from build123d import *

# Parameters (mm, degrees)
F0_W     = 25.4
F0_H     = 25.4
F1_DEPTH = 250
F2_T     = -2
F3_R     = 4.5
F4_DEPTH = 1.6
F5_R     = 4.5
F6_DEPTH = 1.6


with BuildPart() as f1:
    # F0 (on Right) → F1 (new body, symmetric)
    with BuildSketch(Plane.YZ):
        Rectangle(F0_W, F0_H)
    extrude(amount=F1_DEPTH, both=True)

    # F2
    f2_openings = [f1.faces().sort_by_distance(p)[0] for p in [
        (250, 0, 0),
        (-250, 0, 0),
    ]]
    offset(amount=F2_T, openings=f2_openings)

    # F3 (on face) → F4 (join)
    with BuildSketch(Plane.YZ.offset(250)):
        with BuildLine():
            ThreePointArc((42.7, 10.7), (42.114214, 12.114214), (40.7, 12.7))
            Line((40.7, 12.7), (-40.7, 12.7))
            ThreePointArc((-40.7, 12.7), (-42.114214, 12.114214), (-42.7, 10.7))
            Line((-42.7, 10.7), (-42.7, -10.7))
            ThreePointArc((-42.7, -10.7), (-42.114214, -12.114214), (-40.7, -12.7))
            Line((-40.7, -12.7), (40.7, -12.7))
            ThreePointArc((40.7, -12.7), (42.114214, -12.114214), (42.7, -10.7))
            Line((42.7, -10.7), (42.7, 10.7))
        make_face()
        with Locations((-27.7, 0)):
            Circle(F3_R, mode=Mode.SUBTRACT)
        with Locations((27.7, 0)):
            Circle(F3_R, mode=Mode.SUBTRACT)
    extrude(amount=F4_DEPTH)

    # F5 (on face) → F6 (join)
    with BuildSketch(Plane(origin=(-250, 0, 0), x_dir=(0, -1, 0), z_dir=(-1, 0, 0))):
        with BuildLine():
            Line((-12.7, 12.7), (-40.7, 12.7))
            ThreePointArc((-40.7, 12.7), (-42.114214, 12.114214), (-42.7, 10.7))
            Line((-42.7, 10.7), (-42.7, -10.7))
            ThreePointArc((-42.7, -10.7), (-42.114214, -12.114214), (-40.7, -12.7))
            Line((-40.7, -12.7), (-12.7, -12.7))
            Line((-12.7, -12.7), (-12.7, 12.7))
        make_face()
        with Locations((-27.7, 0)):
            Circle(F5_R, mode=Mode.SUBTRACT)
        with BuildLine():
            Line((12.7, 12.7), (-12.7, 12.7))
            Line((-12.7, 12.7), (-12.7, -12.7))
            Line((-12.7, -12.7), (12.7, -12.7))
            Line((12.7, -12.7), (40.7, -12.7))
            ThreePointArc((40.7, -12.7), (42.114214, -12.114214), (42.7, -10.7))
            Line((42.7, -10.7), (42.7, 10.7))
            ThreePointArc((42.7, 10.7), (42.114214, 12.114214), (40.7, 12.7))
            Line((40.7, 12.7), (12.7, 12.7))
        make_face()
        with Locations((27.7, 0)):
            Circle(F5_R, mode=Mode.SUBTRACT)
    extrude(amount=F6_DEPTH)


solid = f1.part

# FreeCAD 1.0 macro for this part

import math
import FreeCAD as App
import Part
import Sketcher
from FreeCAD import Vector
Q = App.Units.Quantity


def faces_at(feature, points):
    """Names of the faces that lie closest to the given points."""
    faces = feature.Shape.Faces
    near = lambda p: min(range(len(faces)), key=lambda i: faces[i].distToShape(Part.Vertex(*p))[0])
    return sorted({f"Face{near(p) + 1}" for p in points})


def add_polygon(sketch, points):
    """Adds a closed chain of lines whose ends are joined by coincident constraints."""
    first, n = sketch.GeometryCount, len(points)
    for a, b in zip(points, points[1:] + points[:1]):
        sketch.addGeometry(Part.LineSegment(App.Vector(*a, 0), App.Vector(*b, 0)), False)
    for i in range(n):
        sketch.addConstraint(Sketcher.Constraint("Coincident", first + i, 2, first + (i + 1) % n, 1))

doc = App.newDocument("Part")
body = doc.addObject("PartDesign::Body", "Body")

sketch1 = doc.addObject("Sketcher::SketchObject", "Sketch")
body.addObject(sketch1)
sketch1.AttachmentSupport = (doc.YZ_Plane, [""])
sketch1.MapMode = "FlatFace"
add_polygon(sketch1, [(-13, 13), (-13, -13), (13, -13), (13, 13)])
sketch1.addConstraint(Sketcher.Constraint("Vertical", 0))
sketch1.addConstraint(Sketcher.Constraint("Horizontal", 1))
sketch1.addConstraint(Sketcher.Constraint("Vertical", 2))
sketch1.addConstraint(Sketcher.Constraint("Horizontal", 3))
sketch1.addConstraint(Sketcher.Constraint("Symmetric", 0, 2, 2, 2, -1, 1))
sketch1.addConstraint(Sketcher.Constraint("Equal", 3, 0))
sketch1.addConstraint(Sketcher.Constraint("DistanceX", 1, 1, 1, 2, Q("25.4 mm")))
pad1 = doc.addObject("PartDesign::Pad", "Pad")
body.addObject(pad1)
pad1.Profile = sketch1
pad1.Length = 500
pad1.Midplane = True
doc.recompute()

thickness = doc.addObject("PartDesign::Thickness", "Thickness")
body.addObject(thickness)
thickness.Base = (pad1, faces_at(pad1, [(250, 0, 0), (-250, 0, 0)]))
thickness.Value = 2
thickness.Reversed = True
thickness.Join = "Arc"

sketch2 = doc.addObject("Sketcher::SketchObject", "Sketch001")
body.addObject(sketch2)
sketch2.AttachmentSupport = (doc.YZ_Plane, [""])
sketch2.MapMode = "FlatFace"
sketch2.AttachmentOffset = App.Placement(Vector(0, 0, 250), App.Rotation())
sketch2.addGeometry(Part.ArcOfCircle(Part.Circle(Vector(40.7, 10.7, 0), Vector(0, 0, 1), 2), math.radians(0), math.radians(90)), False)
sketch2.addGeometry(Part.LineSegment(Vector(40.7, 12.7, 0), Vector(-40.7, 12.7, 0)), False)
sketch2.addGeometry(Part.ArcOfCircle(Part.Circle(Vector(-40.7, 10.7, 0), Vector(0, 0, 1), 2), math.radians(90), math.radians(180)), False)
sketch2.addGeometry(Part.LineSegment(Vector(-42.7, 10.7, 0), Vector(-42.7, -10.7, 0)), False)
sketch2.addGeometry(Part.ArcOfCircle(Part.Circle(Vector(-40.7, -10.7, 0), Vector(0, 0, 1), 2), math.radians(180), math.radians(270)), False)
sketch2.addGeometry(Part.LineSegment(Vector(-40.7, -12.7, 0), Vector(40.7, -12.7, 0)), False)
sketch2.addGeometry(Part.ArcOfCircle(Part.Circle(Vector(40.7, -10.7, 0), Vector(0, 0, 1), 2), math.radians(-90), math.radians(0)), False)
sketch2.addGeometry(Part.LineSegment(Vector(42.7, -10.7, 0), Vector(42.7, 10.7, 0)), False)
sketch2.addGeometry(Part.Circle(Vector(-27.7, 0, 0), Vector(0, 0, 1), 4.5), False)
sketch2.addGeometry(Part.Circle(Vector(27.7, 0, 0), Vector(0, 0, 1), 4.5), False)
sketch2.addConstraint(Sketcher.Constraint("Tangent", 0, 2, 1, 1))
sketch2.addConstraint(Sketcher.Constraint("Tangent", 1, 2, 2, 1))
sketch2.addConstraint(Sketcher.Constraint("Tangent", 2, 2, 3, 1))
sketch2.addConstraint(Sketcher.Constraint("Tangent", 3, 2, 4, 1))
sketch2.addConstraint(Sketcher.Constraint("Tangent", 4, 2, 5, 1))
sketch2.addConstraint(Sketcher.Constraint("Tangent", 5, 2, 6, 1))
sketch2.addConstraint(Sketcher.Constraint("Tangent", 6, 2, 7, 1))
sketch2.addConstraint(Sketcher.Constraint("Tangent", 7, 2, 0, 1))
sketch2.addConstraint(Sketcher.Constraint("Horizontal", 1))
sketch2.addConstraint(Sketcher.Constraint("Vertical", 3))
sketch2.addConstraint(Sketcher.Constraint("Horizontal", 5))
sketch2.addConstraint(Sketcher.Constraint("Vertical", 7))
sketch2.addConstraint(Sketcher.Constraint("Equal", 0, 2))
sketch2.addConstraint(Sketcher.Constraint("Equal", 2, 4))
sketch2.addConstraint(Sketcher.Constraint("Equal", 4, 6))
sketch2.addConstraint(Sketcher.Constraint("Equal", 8, 9))
sketch2.addConstraint(Sketcher.Constraint("Symmetric", 0, 3, 4, 3, -1, 1))
sketch2.addConstraint(Sketcher.Constraint("Symmetric", 8, 3, 9, 3, -1, 1))
sketch2.addConstraint(Sketcher.Constraint("PointOnObject", 8, 3, -1))
sketch2.addConstraint(Sketcher.Constraint("Diameter", 8, Q("9 mm")))
sketch2.addConstraint(Sketcher.Constraint("Radius", 0, Q("1.999999 mm")))
sketch2.addConstraint(Sketcher.Constraint("DistanceX", 1, 2, 1, 1, Q("81.4 mm")))
sketch2.addConstraint(Sketcher.Constraint("DistanceY", 3, 2, 3, 1, Q("21.4 mm")))
sketch2.addConstraint(Sketcher.Constraint("DistanceX", 2, 3, 8, 3, Q("13.000001 mm")))
pad2 = doc.addObject("PartDesign::Pad", "Pad001")
body.addObject(pad2)
pad2.Profile = sketch2
pad2.Length = 1.6

sketch3 = doc.addObject("Sketcher::SketchObject", "Sketch002")
body.addObject(sketch3)
sketch3.AttachmentSupport = (doc.YZ_Plane, [""])
sketch3.MapMode = "FlatFace"
sketch3.AttachmentOffset = App.Placement(Vector(0, 0, -250), App.Rotation())
sketch3.addGeometry(Part.ArcOfCircle(Part.Circle(Vector(40.7, 10.7, 0), Vector(0, 0, 1), 2), math.radians(0), math.radians(90)), False)
sketch3.addGeometry(Part.LineSegment(Vector(42.7, 10.7, 0), Vector(42.7, -10.7, 0)), False)
sketch3.addGeometry(Part.ArcOfCircle(Part.Circle(Vector(40.7, -10.7, 0), Vector(0, 0, 1), 2), math.radians(-90), math.radians(0)), False)
sketch3.addGeometry(Part.LineSegment(Vector(40.7, -12.7, 0), Vector(-40.7, -12.7, 0)), False)
sketch3.addGeometry(Part.ArcOfCircle(Part.Circle(Vector(-40.7, -10.7, 0), Vector(0, 0, 1), 2), math.radians(180), math.radians(270)), False)
sketch3.addGeometry(Part.LineSegment(Vector(-42.7, -10.7, 0), Vector(-42.7, 10.7, 0)), False)
sketch3.addGeometry(Part.ArcOfCircle(Part.Circle(Vector(-40.7, 10.7, 0), Vector(0, 0, 1), 2), math.radians(90), math.radians(180)), False)
sketch3.addGeometry(Part.LineSegment(Vector(-40.7, 12.7, 0), Vector(40.7, 12.7, 0)), False)
sketch3.addGeometry(Part.Circle(Vector(27.7, 0, 0), Vector(0, 0, 1), 4.5), False)
sketch3.addGeometry(Part.Circle(Vector(-27.7, 0, 0), Vector(0, 0, 1), 4.5), False)
sketch3.addConstraint(Sketcher.Constraint("Tangent", 0, 1, 1, 1))
sketch3.addConstraint(Sketcher.Constraint("Tangent", 1, 2, 2, 2))
sketch3.addConstraint(Sketcher.Constraint("Tangent", 2, 1, 3, 1))
sketch3.addConstraint(Sketcher.Constraint("Tangent", 3, 2, 4, 2))
sketch3.addConstraint(Sketcher.Constraint("Tangent", 4, 1, 5, 1))
sketch3.addConstraint(Sketcher.Constraint("Tangent", 5, 2, 6, 2))
sketch3.addConstraint(Sketcher.Constraint("Tangent", 6, 1, 7, 1))
sketch3.addConstraint(Sketcher.Constraint("Tangent", 7, 2, 0, 2))
sketch3.addConstraint(Sketcher.Constraint("Vertical", 1))
sketch3.addConstraint(Sketcher.Constraint("Horizontal", 3))
sketch3.addConstraint(Sketcher.Constraint("Vertical", 5))
sketch3.addConstraint(Sketcher.Constraint("Horizontal", 7))
sketch3.addConstraint(Sketcher.Constraint("Equal", 0, 2))
sketch3.addConstraint(Sketcher.Constraint("Equal", 2, 4))
sketch3.addConstraint(Sketcher.Constraint("Equal", 4, 6))
sketch3.addConstraint(Sketcher.Constraint("Equal", 8, 9))
sketch3.addConstraint(Sketcher.Constraint("Symmetric", 0, 3, 4, 3, -1, 1))
sketch3.addConstraint(Sketcher.Constraint("Symmetric", 8, 3, 9, 3, -1, 1))
sketch3.addConstraint(Sketcher.Constraint("PointOnObject", 8, 3, -1))
sketch3.addConstraint(Sketcher.Constraint("Diameter", 8, Q("9 mm")))
sketch3.addConstraint(Sketcher.Constraint("Radius", 0, Q("1.999999 mm")))
sketch3.addConstraint(Sketcher.Constraint("DistanceX", 3, 2, 3, 1, Q("81.4 mm")))
sketch3.addConstraint(Sketcher.Constraint("DistanceY", 1, 2, 1, 1, Q("21.4 mm")))
sketch3.addConstraint(Sketcher.Constraint("DistanceX", 8, 3, 0, 3, Q("13.000001 mm")))
pad3 = doc.addObject("PartDesign::Pad", "Pad002")
body.addObject(pad3)
pad3.Profile = sketch3
pad3.Length = 1.6
pad3.Reversed = True

doc.recompute()
